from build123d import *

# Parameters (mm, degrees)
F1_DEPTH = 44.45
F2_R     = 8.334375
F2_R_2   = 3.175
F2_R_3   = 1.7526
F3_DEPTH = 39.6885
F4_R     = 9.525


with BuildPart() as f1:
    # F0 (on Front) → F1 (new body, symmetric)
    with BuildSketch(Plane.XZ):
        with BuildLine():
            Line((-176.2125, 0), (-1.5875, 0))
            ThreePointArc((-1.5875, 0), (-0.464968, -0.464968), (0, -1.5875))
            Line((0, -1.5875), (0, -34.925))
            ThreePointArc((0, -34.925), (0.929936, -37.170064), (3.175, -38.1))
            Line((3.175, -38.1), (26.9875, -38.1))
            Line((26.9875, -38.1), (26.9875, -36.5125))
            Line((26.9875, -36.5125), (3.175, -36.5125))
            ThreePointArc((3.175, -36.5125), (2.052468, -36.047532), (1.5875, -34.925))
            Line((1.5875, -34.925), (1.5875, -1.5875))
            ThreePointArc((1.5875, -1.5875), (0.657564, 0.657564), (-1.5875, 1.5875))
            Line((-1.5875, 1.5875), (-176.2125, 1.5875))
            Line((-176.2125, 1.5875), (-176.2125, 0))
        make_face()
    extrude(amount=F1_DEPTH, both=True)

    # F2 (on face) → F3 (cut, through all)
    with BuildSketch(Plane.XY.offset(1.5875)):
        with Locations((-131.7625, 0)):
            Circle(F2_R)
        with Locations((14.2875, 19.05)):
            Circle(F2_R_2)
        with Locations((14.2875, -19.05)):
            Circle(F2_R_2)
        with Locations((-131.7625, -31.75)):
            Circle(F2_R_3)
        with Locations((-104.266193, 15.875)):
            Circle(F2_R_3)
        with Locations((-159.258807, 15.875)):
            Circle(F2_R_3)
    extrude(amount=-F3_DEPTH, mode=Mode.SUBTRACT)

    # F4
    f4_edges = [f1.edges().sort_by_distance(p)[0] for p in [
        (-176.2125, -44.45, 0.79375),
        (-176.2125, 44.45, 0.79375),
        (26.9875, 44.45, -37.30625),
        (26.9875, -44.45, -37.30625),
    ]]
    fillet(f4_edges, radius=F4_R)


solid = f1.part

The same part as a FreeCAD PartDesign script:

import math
import FreeCAD as App
import Part
import Sketcher
from FreeCAD import Vector
Q = App.Units.Quantity


def edges_at(feature, points):
    """Names of the edges that pass closest to the given points."""
    edges = feature.Shape.Edges
    near = lambda p: min(range(len(edges)), key=lambda i: edges[i].distToShape(Part.Vertex(*p))[0])
    return sorted({f"Edge{near(p) + 1}" for p in points})

doc = App.newDocument("Part")
params = doc.addObject("Spreadsheet::Sheet", "Params")
for row, (alias, value) in enumerate([
    ("sketch1_radius", "0.0625 in"),
    ("sketch1_width", "6.875 in"),
    ("sketch1_width2", "0.9375 in"),
    ("pad1_length", "3.5 in"),
    ("sketch2_diameter", "0.25 in"),
    ("sketch2_diameter2", "0.65625 in"),
    ("sketch2_diameter3", "0.138 in"),
    ("fillet_radius", "0.375 in"),
], start=1):
    params.set(f"A{row}", alias)
    params.set(f"B{row}", "=" + value)
    params.setAlias(f"B{row}", alias)

body = doc.addObject("PartDesign::Body", "Body")

sketch1 = body.newObject("Sketcher::SketchObject", "Sketch")
sketch1.AttachmentSupport = (doc.getObject("XZ_Plane"), [""])
sketch1.MapMode = "FlatFace"
sketch1.addGeometry([
    Part.LineSegment(Vector(-176.2, 0, 0), Vector(-1.6, 0, 0)),
    Part.ArcOfCircle(Part.Circle(Vector(-1.6, -1.6, 0), Vector(0, 0, 1), 1.6), math.radians(0), math.radians(90)),
    Part.LineSegment(Vector(0, -1.6, 0), Vector(0, -34.9, 0)),
    Part.ArcOfCircle(Part.Circle(Vector(3.2, -34.9, 0), Vector(0, 0, 1), 3.2), math.radians(-180), math.radians(-90)),
    Part.LineSegment(Vector(3.2, -38.1, 0), Vector(27, -38.1, 0)),
    Part.LineSegment(Vector(27, -38.1, 0), Vector(27, -36.5, 0)),
    Part.LineSegment(Vector(27, -36.5, 0), Vector(3.2, -36.5, 0)),
    Part.ArcOfCircle(Part.Circle(Vector(3.2, -34.9, 0), Vector(0, 0, 1), 1.6), math.radians(-180), math.radians(-90)),
    Part.LineSegment(Vector(1.6, -34.9, 0), Vector(1.6, -1.6, 0)),
    Part.ArcOfCircle(Part.Circle(Vector(-1.6, -1.6, 0), Vector(0, 0, 1), 3.2), math.radians(0), math.radians(90)),
    Part.LineSegment(Vector(-1.6, 1.6, 0), Vector(-176.2, 1.6, 0)),
    Part.LineSegment(Vector(-176.2, 1.6, 0), Vector(-176.2, 0, 0)),
], False)
sketch1.addConstraint([
    Sketcher.Constraint("Tangent", 0, 2, 1, 2),
    Sketcher.Constraint("Tangent", 1, 1, 2, 1),
    Sketcher.Constraint("Tangent", 2, 2, 3, 1),
    Sketcher.Constraint("Tangent", 3, 2, 4, 1),
    Sketcher.Constraint("Coincident", 4, 2, 5, 1),
    Sketcher.Constraint("Coincident", 5, 2, 6, 1),
    Sketcher.Constraint("Tangent", 6, 2, 7, 2),
    Sketcher.Constraint("Tangent", 7, 1, 8, 1),
    Sketcher.Constraint("Tangent", 8, 2, 9, 1),
    Sketcher.Constraint("Tangent", 9, 2, 10, 1),
    Sketcher.Constraint("Coincident", 10, 2, 11, 1),
    Sketcher.Constraint("Coincident", 11, 2, 0, 1),
    Sketcher.Constraint("Horizontal", 0),
    Sketcher.Constraint("Vertical", 2),
    Sketcher.Constraint("Horizontal", 4),
    Sketcher.Constraint("Vertical", 5),
    Sketcher.Constraint("Horizontal", 6),
    Sketcher.Constraint("Vertical", 8),
    Sketcher.Constraint("Horizontal", 10),
    Sketcher.Constraint("Vertical", 11),
    Sketcher.Constraint("Coincident", 7, 3, 3, 3),
    Sketcher.Constraint("Coincident", 9, 3, 1, 3),
    Sketcher.Constraint("Equal", 1, 7),
    Sketcher.Constraint("Symmetric", 8, 2, 9, 2, -1, 1),
    Sketcher.Constraint("PointOnObject", 0, 2, -1),
    Sketcher.Constraint("Radius", 1, Q("0.0625 in")),
    Sketcher.Constraint("DistanceY", 3, 2, -1, 1, Q("1.5 in")),
    Sketcher.Constraint("DistanceX", 0, 1, 0, 2, Q("6.875 in")),
    Sketcher.Constraint("DistanceX", 4, 1, 4, 2, Q("0.9375 in")),
])
sketch1.setExpression("Constraints[25]", "Params.sketch1_radius")
sketch1.setExpression("Constraints[27]", "Params.sketch1_width")
sketch1.setExpression("Constraints[28]", "Params.sketch1_width2")
pad1 = body.newObject("PartDesign::Pad", "Pad")
pad1.Profile = sketch1
pad1.setExpression("Length", "Params.pad1_length")
pad1.Midplane = True

sketch2 = body.newObject("Sketcher::SketchObject", "Sketch001")
sketch2.AttachmentSupport = (doc.getObject("XY_Plane"), [""])
sketch2.MapMode = "FlatFace"
sketch2.AttachmentOffset = App.Placement(Vector(0, 0, 0.0625 * 25.4), App.Rotation())
sketch2.addGeometry([
    Part.Circle(Vector(-131.8, 0, 0), Vector(0, 0, 1), 8.3),
    Part.Circle(Vector(14.3, 19.1, 0), Vector(0, 0, 1), 3.2),
    Part.Circle(Vector(14.3, -19.1, 0), Vector(0, 0, 1), 3.2),
    Part.Circle(Vector(-131.8, -31.8, 0), Vector(0, 0, 1), 1.8),
    Part.Circle(Vector(-104.3, 15.9, 0), Vector(0, 0, 1), 1.8),
    Part.Circle(Vector(-159.3, 15.9, 0), Vector(0, 0, 1), 1.8),
], False)
sketch2.addConstraint([
    Sketcher.Constraint("Equal", 1, 2),
    Sketcher.Constraint("Equal", 3, 4),
    Sketcher.Constraint("Equal", 4, 5),
    Sketcher.Constraint("Symmetric", 1, 3, 2, 3, -1),
    Sketcher.Constraint("PointOnObject", 0, 3, -1),
    Sketcher.Constraint("Horizontal", 4, 3, 5, 3),
    Sketcher.Constraint("Vertical", 0, 3, 3, 3),
    Sketcher.Constraint("Diameter", 1, Q("0.25 in")),
    Sketcher.Constraint("Diameter", 0, Q("0.65625 in")),
    Sketcher.Constraint("Diameter", 3, Q("0.138 in")),
    Sketcher.Constraint("DistanceY", 3, 3, 1, 3, Q("2 in")),
    Sketcher.Constraint("DistanceY", 2, 3, 1, 3, Q("1.5 in")),
    Sketcher.Constraint("DistanceX", 0, 3, 1, 3, Q("5.75 in")),
    Sketcher.Constraint("DistanceX", 0, 3, -1, 1, Q("5.1875 in")),
    Sketcher.Constraint("DistanceY", -1, 1, 4, 3, Q("0.625 in")),
    Sketcher.Constraint("DistanceX", 4, 3, -1, 1, Q("104.266193 mm")),
    Sketcher.Constraint("DistanceX", 5, 3, -1, 1, Q("159.258807 mm")),
])
sketch2.setExpression("Constraints[7]", "Params.sketch2_diameter")
sketch2.setExpression("Constraints[8]", "Params.sketch2_diameter2")
sketch2.setExpression("Constraints[9]", "Params.sketch2_diameter3")
pocket1 = body.newObject("PartDesign::Pocket", "Pocket")
pocket1.Profile = sketch2
pocket1.Type = "ThroughAll"
doc.recompute()

fillet = body.newObject("PartDesign::Fillet", "Fillet")
fillet.Base = (pocket1, edges_at(pocket1, [
    (-176.213, -44.45, 0.794),
    (-176.213, 44.45, 0.794),
    (26.988, 44.45, -37.306),
    (26.988, -44.45, -37.306),
]))
fillet.setExpression("Radius", "Params.fillet_radius")

doc.recompute()
